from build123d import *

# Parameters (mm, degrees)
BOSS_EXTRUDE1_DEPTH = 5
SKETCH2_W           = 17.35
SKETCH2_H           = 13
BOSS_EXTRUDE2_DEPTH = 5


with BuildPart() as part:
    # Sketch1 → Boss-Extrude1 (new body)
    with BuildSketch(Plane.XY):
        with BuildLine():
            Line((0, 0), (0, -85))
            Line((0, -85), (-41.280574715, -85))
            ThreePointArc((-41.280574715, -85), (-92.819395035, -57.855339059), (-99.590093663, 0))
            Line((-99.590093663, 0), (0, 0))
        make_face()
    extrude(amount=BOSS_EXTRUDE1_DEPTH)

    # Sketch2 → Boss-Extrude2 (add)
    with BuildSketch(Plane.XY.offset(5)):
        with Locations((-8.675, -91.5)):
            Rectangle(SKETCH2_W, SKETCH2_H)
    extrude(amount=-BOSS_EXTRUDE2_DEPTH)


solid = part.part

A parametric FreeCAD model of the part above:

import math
import FreeCAD as App
import Part
import Sketcher
from FreeCAD import Vector
Q = App.Units.Quantity


def add_polygon(sketch, points):
    """Adds a closed chain of lines whose ends are joined by coincident constraints."""
    first, n = sketch.GeometryCount, len(points)
    for a, b in zip(points, points[1:] + points[:1]):
        sketch.addGeometry(Part.LineSegment(App.Vector(*a, 0), App.Vector(*b, 0)), False)
    for i in range(n):
        sketch.addConstraint(Sketcher.Constraint("Coincident", first + i, 2, first + (i + 1) % n, 1))

doc = App.newDocument("Part")
params = doc.addObject("Spreadsheet::Sheet", "Params")
for row, (alias, value) in enumerate([
    ("sketch1_radius", "62.5 mm"),
    ("sketch1_height", "85 mm"),
    ("pad1_length", "5 mm"),
    ("sketch2_height", "13 mm"),
    ("sketch2_width", "17.35 mm"),
    ("pad2_length", "5 mm"),
], start=1):
    params.set(f"A{row}", alias)
    params.set(f"B{row}", "=" + value)
    params.setAlias(f"B{row}", alias)

body = doc.addObject("PartDesign::Body", "Body")

# Sketch on XY plane
sketch1 = body.newObject("Sketcher::SketchObject", "Sketch")
sketch1.AttachmentSupport = (doc.getObject("XY_Plane"), [""])
sketch1.MapMode = "FlatFace"
sketch1.addGeometry(Part.LineSegment(Vector(0, -85, 0), Vector(0, 0, 0)), False)
sketch1.addGeometry(Part.LineSegment(Vector(0, 0, 0), Vector(-99.590094, 0, 0)), False)
sketch1.addGeometry(Part.ArcOfCircle(Part.Circle(Vector(-41.280575, -22.5, 0), Vector(0, 0, 1), 62.5), math.radians(158.899804), math.radians(270)), False)
sketch1.addGeometry(Part.LineSegment(Vector(-41.280575, -85, 0), Vector(0, -85, 0)), False)
sketch1.addConstraint(Sketcher.Constraint("Coincident", 0, 2, 1, 1))
sketch1.addConstraint(Sketcher.Constraint("Coincident", 1, 2, 2, 1))
sketch1.addConstraint(Sketcher.Constraint("Tangent", 2, 2, 3, 1))
sketch1.addConstraint(Sketcher.Constraint("Coincident", 3, 2, 0, 1))
sketch1.addConstraint(Sketcher.Constraint("Vertical", 0))
sketch1.addConstraint(Sketcher.Constraint("Horizontal", 1))
sketch1.addConstraint(Sketcher.Constraint("Horizontal", 3))
sketch1.addConstraint(Sketcher.Constraint("Coincident", 0, 2, -1, 1))
sketch1.addConstraint(Sketcher.Constraint("Radius", 2, Q("62.5 mm")))
sketch1.addConstraint(Sketcher.Constraint("DistanceY", 0, 1, 0, 2, Q("85 mm")))
sketch1.addConstraint(Sketcher.Constraint("DistanceX", 1, 2, 1, 1, Q("99.590094 mm")))
sketch1.setExpression("Constraints[8]", "Params.sketch1_radius")
sketch1.setExpression("Constraints[9]", "Params.sketch1_height")
pad1 = body.newObject("PartDesign::Pad", "Pad")
pad1.Profile = sketch1
pad1.setExpression("Length", "Params.pad1_length")

# Sketch on XY plane
sketch2 = body.newObject("Sketcher::SketchObject", "Sketch001")
sketch2.AttachmentSupport = (doc.getObject("XY_Plane"), [""])
sketch2.MapMode = "FlatFace"
sketch2.AttachmentOffset = App.Placement(Vector(0, 0, 5), App.Rotation())
add_polygon(sketch2, [(-17.35, -85), (-17.35, -98), (0, -98), (0, -85)])  # lines 0-3
sketch2.addConstraint(Sketcher.Constraint("Vertical", 0))
sketch2.addConstraint(Sketcher.Constraint("Horizontal", 1))
sketch2.addConstraint(Sketcher.Constraint("Vertical", 2))
sketch2.addConstraint(Sketcher.Constraint("Horizontal", 3))
sketch2.addConstraint(Sketcher.Constraint("PointOnObject", 1, 2, -2))
sketch2.addConstraint(Sketcher.Constraint("DistanceY", 0, 2, 0, 1, Q("13 mm")))
sketch2.addConstraint(Sketcher.Constraint("DistanceY", 0, 2, -1, 1, Q("98 mm")))
sketch2.addConstraint(Sketcher.Constraint("DistanceX", 1, 1, 1, 2, Q("17.35 mm")))
sketch2.setExpression("Constraints[9]", "Params.sketch2_height")
sketch2.setExpression("Constraints[11]", "Params.sketch2_width")
pad2 = body.newObject("PartDesign::Pad", "Pad001")
pad2.Profile = sketch2
pad2.setExpression("Length", "Params.pad2_length")
pad2.Reversed = True

doc.recompute()
